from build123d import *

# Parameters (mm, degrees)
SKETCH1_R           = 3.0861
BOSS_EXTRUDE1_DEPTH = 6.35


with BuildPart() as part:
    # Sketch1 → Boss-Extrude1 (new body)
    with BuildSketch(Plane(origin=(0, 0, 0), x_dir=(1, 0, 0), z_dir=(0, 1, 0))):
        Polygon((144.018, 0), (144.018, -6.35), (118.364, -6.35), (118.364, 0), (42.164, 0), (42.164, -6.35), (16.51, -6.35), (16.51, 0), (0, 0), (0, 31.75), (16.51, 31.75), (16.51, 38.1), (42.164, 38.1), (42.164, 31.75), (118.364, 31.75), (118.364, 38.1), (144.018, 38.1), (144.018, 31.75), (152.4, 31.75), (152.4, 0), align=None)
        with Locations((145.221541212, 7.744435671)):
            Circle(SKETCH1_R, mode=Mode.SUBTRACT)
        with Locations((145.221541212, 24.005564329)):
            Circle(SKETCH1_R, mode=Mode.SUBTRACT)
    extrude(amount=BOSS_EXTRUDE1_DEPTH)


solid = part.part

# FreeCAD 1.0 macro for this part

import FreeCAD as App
import Part
import Sketcher
Q = App.Units.Quantity


def add_polygon(sketch, points):
    """Adds a closed chain of lines whose ends are joined by coincident constraints."""
    first, n = sketch.GeometryCount, len(points)
    for a, b in zip(points, points[1:] + points[:1]):
        sketch.addGeometry(Part.LineSegment(App.Vector(*a, 0), App.Vector(*b, 0)), False)
    for i in range(n):
        sketch.addConstraint(Sketcher.Constraint("Coincident", first + i, 2, first + (i + 1) % n, 1))

doc = App.newDocument("Part")
params = doc.addObject("Spreadsheet::Sheet", "Params")
for row, (alias, value) in enumerate([
    ("sketch1_width", "3 in"),
    ("sketch1_diameter", "0.243 in"),
    ("sketch1_width2", "0.33 in"),
    ("sketch1_width3", "1.01 in"),
    ("sketch1_height", "0.25 in"),
    ("pad1_length", "0.25 in"),
], start=1):
    params.set(f"A{row}", alias)
    params.set(f"B{row}", "=" + value)
    params.setAlias(f"B{row}", alias)

body = doc.addObject("PartDesign::Body", "Body")

sketch1 = doc.addObject("Sketcher::SketchObject", "Sketch")
body.addObject(sketch1)
sketch1.AttachmentSupport = (doc.XZ_Plane, [""])
sketch1.MapMode = "FlatFace"
add_polygon(sketch1, [(144.018, 6.35), (144.018, 0), (152.4, 0), (152.4, -31.75), (144.018, -31.75), (144.018, -38.1), (118.364, -38.1), (118.364, -31.75), (42.164, -31.75), (42.164, -38.1), (16.51, -38.1), (16.51, -31.75), (0, -31.75), (0, 0), (16.51, 0), (16.51, 6.35), (42.164, 6.35), (42.164, 0), (118.364, 0), (118.364, 6.35)])
sketch1.addGeometry(Part.Circle(App.Vector(145.221541, -7.744436, 0), App.Vector(0, 0, 1), 3.0861), False)
sketch1.addGeometry(Part.Circle(App.Vector(145.221541, -24.005564, 0), App.Vector(0, 0, 1), 3.0861), False)
sketch1.addConstraint(Sketcher.Constraint("Vertical", 0))
sketch1.addConstraint(Sketcher.Constraint("Horizontal", 1))
sketch1.addConstraint(Sketcher.Constraint("Vertical", 2))
sketch1.addConstraint(Sketcher.Constraint("Horizontal", 3))
sketch1.addConstraint(Sketcher.Constraint("Vertical", 4))
sketch1.addConstraint(Sketcher.Constraint("Horizontal", 5))
sketch1.addConstraint(Sketcher.Constraint("Vertical", 6))
sketch1.addConstraint(Sketcher.Constraint("Horizontal", 7))
sketch1.addConstraint(Sketcher.Constraint("Vertical", 8))
sketch1.addConstraint(Sketcher.Constraint("Horizontal", 9))
sketch1.addConstraint(Sketcher.Constraint("Vertical", 10))
sketch1.addConstraint(Sketcher.Constraint("Horizontal", 11))
sketch1.addConstraint(Sketcher.Constraint("Vertical", 12))
sketch1.addConstraint(Sketcher.Constraint("Horizontal", 13))
sketch1.addConstraint(Sketcher.Constraint("Vertical", 14))
sketch1.addConstraint(Sketcher.Constraint("Horizontal", 15))
sketch1.addConstraint(Sketcher.Constraint("Vertical", 16))
sketch1.addConstraint(Sketcher.Constraint("Horizontal", 17))
sketch1.addConstraint(Sketcher.Constraint("Vertical", 18))
sketch1.addConstraint(Sketcher.Constraint("Horizontal", 19))
sketch1.addConstraint(Sketcher.Constraint("Coincident", 12, 2, -1, 1))
sketch1.addConstraint(Sketcher.Constraint("Equal", 20, 21))
sketch1.addConstraint(Sketcher.Constraint("PointOnObject", 0, 2, -1))
sketch1.addConstraint(Sketcher.Constraint("PointOnObject", 16, 2, -1))
sketch1.addConstraint(Sketcher.Constraint("Horizontal", 3, 2, 6, 2))
sketch1.addConstraint(Sketcher.Constraint("Horizontal", 5, 2, 8, 2))
sketch1.addConstraint(Sketcher.Constraint("Horizontal", 7, 2, 10, 2))
sketch1.addConstraint(Sketcher.Constraint("Horizontal", 15, 2, 18, 2))
sketch1.addConstraint(Sketcher.Constraint("Vertical", 20, 3, 21, 3))
sketch1.addConstraint(Sketcher.Constraint("Vertical", 0, 2, 3, 2))
sketch1.addConstraint(Sketcher.Constraint("Vertical", 10, 2, 13, 2))
sketch1.addConstraint(Sketcher.Constraint("Vertical", 8, 2, 15, 2))
sketch1.addConstraint(Sketcher.Constraint("Vertical", 6, 2, 17, 2))
sketch1.addConstraint(Sketcher.Constraint("Equal", 5, 9))
sketch1.addConstraint(Sketcher.Constraint("Equal", 0, 4))
sketch1.addConstraint(Sketcher.Constraint("DistanceX", 7, 2, 7, 1, Q("3 in")))
sketch1.addConstraint(Sketcher.Constraint("Diameter", 20, Q("0.243 in")))
sketch1.addConstraint(Sketcher.Constraint("DistanceX", -1, 1, 1, 2, Q("6 in")))
sketch1.addConstraint(Sketcher.Constraint("DistanceX", 1, 1, 1, 2, Q("0.33 in")))
sketch1.addConstraint(Sketcher.Constraint("DistanceX", 5, 2, 5, 1, Q("1.01 in")))
sketch1.addConstraint(Sketcher.Constraint("DistanceY", 0, 2, 0, 1, Q("0.25 in")))
sketch1.addConstraint(Sketcher.Constraint("DistanceY", 2, 2, 2, 1, Q("1.25 in")))
sketch1.addConstraint(Sketcher.Constraint("DistanceX", -1, 1, 20, 3, 145.221541))
sketch1.addConstraint(Sketcher.Constraint("DistanceY", 21, 3, 20, 3, 16.261129))
sketch1.addConstraint(Sketcher.Constraint("DistanceY", 20, 3, -1, 1, 7.744436))
sketch1.setExpression("Constraints[55]", "Params.sketch1_width")
sketch1.setExpression("Constraints[56]", "Params.sketch1_diameter")
sketch1.setExpression("Constraints[58]", "Params.sketch1_width2")
sketch1.setExpression("Constraints[59]", "Params.sketch1_width3")
sketch1.setExpression("Constraints[60]", "Params.sketch1_height")
pad1 = doc.addObject("PartDesign::Pad", "Pad")
body.addObject(pad1)
pad1.Profile = sketch1
pad1.setExpression("Length", "Params.pad1_length")
pad1.Reversed = True

doc.recompute()
